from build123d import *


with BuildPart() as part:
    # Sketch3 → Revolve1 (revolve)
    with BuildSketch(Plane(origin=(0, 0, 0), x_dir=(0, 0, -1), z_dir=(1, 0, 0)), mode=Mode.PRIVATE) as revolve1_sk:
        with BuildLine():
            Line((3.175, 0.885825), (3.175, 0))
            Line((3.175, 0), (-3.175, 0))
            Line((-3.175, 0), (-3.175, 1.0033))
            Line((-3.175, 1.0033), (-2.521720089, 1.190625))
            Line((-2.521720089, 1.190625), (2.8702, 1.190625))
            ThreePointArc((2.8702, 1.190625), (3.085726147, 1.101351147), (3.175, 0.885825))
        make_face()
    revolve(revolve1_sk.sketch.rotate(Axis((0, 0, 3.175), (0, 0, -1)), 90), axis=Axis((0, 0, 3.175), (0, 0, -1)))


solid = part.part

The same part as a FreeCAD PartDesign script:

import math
import FreeCAD as App
import Part
import Sketcher
Q = App.Units.Quantity

doc = App.newDocument("Part")
body = doc.addObject("PartDesign::Body", "Body")

sketch1 = body.newObject("Sketcher::SketchObject", "Sketch")
sketch1.AttachmentSupport = (doc.getObject("YZ_Plane"), [""])
sketch1.MapMode = "FlatFace"
sketch1.addGeometry([
    Part.LineSegment(App.Vector(0, -3.17, 0), App.Vector(0.89, -3.17, 0)),
    Part.ArcOfCircle(Part.Circle(App.Vector(0.89, -2.87, 0), App.Vector(0, 0, 1), 0.3), math.radians(-90), math.radians(0)),
    Part.LineSegment(App.Vector(1.19, -2.87, 0), App.Vector(1.19, 2.52, 0)),
    Part.LineSegment(App.Vector(1.19, 2.52, 0), App.Vector(1, 3.17, 0)),
    Part.LineSegment(App.Vector(1, 3.17, 0), App.Vector(0, 3.17, 0)),
    Part.LineSegment(App.Vector(0, 3.17, 0), App.Vector(0, -3.17, 0)),
], False)
sketch1.addConstraint([
    Sketcher.Constraint("Tangent", 0, 2, 1, 1),
    Sketcher.Constraint("Tangent", 1, 2, 2, 1),
    Sketcher.Constraint("Coincident", 2, 2, 3, 1),
    Sketcher.Constraint("Coincident", 3, 2, 4, 1),
    Sketcher.Constraint("Coincident", 4, 2, 5, 1),
    Sketcher.Constraint("Coincident", 5, 2, 0, 1),
    Sketcher.Constraint("Horizontal", 0),
    Sketcher.Constraint("Vertical", 2),
    Sketcher.Constraint("Horizontal", 4),
    Sketcher.Constraint("Vertical", 5),
    Sketcher.Constraint("Symmetric", 4, 2, 5, 2, -1, 1),
    Sketcher.Constraint("Angle", 3, Q("106 deg")),
    Sketcher.Constraint("Radius", 1, Q("0.012 in")),
    Sketcher.Constraint("DistanceY", 5, 2, 5, 1, Q("0.25 in")),
    Sketcher.Constraint("DistanceX", 4, 2, 4, 1, Q("0.0395 in")),
    Sketcher.Constraint("DistanceX", -1, 1, 1, 2, Q("0.046875 in")),
])
revolution = body.newObject("PartDesign::Revolution", "Revolution")
revolution.Profile = sketch1
revolution.ReferenceAxis = (sketch1, ["V_Axis"])
revolution.Angle = 360

doc.recompute()
